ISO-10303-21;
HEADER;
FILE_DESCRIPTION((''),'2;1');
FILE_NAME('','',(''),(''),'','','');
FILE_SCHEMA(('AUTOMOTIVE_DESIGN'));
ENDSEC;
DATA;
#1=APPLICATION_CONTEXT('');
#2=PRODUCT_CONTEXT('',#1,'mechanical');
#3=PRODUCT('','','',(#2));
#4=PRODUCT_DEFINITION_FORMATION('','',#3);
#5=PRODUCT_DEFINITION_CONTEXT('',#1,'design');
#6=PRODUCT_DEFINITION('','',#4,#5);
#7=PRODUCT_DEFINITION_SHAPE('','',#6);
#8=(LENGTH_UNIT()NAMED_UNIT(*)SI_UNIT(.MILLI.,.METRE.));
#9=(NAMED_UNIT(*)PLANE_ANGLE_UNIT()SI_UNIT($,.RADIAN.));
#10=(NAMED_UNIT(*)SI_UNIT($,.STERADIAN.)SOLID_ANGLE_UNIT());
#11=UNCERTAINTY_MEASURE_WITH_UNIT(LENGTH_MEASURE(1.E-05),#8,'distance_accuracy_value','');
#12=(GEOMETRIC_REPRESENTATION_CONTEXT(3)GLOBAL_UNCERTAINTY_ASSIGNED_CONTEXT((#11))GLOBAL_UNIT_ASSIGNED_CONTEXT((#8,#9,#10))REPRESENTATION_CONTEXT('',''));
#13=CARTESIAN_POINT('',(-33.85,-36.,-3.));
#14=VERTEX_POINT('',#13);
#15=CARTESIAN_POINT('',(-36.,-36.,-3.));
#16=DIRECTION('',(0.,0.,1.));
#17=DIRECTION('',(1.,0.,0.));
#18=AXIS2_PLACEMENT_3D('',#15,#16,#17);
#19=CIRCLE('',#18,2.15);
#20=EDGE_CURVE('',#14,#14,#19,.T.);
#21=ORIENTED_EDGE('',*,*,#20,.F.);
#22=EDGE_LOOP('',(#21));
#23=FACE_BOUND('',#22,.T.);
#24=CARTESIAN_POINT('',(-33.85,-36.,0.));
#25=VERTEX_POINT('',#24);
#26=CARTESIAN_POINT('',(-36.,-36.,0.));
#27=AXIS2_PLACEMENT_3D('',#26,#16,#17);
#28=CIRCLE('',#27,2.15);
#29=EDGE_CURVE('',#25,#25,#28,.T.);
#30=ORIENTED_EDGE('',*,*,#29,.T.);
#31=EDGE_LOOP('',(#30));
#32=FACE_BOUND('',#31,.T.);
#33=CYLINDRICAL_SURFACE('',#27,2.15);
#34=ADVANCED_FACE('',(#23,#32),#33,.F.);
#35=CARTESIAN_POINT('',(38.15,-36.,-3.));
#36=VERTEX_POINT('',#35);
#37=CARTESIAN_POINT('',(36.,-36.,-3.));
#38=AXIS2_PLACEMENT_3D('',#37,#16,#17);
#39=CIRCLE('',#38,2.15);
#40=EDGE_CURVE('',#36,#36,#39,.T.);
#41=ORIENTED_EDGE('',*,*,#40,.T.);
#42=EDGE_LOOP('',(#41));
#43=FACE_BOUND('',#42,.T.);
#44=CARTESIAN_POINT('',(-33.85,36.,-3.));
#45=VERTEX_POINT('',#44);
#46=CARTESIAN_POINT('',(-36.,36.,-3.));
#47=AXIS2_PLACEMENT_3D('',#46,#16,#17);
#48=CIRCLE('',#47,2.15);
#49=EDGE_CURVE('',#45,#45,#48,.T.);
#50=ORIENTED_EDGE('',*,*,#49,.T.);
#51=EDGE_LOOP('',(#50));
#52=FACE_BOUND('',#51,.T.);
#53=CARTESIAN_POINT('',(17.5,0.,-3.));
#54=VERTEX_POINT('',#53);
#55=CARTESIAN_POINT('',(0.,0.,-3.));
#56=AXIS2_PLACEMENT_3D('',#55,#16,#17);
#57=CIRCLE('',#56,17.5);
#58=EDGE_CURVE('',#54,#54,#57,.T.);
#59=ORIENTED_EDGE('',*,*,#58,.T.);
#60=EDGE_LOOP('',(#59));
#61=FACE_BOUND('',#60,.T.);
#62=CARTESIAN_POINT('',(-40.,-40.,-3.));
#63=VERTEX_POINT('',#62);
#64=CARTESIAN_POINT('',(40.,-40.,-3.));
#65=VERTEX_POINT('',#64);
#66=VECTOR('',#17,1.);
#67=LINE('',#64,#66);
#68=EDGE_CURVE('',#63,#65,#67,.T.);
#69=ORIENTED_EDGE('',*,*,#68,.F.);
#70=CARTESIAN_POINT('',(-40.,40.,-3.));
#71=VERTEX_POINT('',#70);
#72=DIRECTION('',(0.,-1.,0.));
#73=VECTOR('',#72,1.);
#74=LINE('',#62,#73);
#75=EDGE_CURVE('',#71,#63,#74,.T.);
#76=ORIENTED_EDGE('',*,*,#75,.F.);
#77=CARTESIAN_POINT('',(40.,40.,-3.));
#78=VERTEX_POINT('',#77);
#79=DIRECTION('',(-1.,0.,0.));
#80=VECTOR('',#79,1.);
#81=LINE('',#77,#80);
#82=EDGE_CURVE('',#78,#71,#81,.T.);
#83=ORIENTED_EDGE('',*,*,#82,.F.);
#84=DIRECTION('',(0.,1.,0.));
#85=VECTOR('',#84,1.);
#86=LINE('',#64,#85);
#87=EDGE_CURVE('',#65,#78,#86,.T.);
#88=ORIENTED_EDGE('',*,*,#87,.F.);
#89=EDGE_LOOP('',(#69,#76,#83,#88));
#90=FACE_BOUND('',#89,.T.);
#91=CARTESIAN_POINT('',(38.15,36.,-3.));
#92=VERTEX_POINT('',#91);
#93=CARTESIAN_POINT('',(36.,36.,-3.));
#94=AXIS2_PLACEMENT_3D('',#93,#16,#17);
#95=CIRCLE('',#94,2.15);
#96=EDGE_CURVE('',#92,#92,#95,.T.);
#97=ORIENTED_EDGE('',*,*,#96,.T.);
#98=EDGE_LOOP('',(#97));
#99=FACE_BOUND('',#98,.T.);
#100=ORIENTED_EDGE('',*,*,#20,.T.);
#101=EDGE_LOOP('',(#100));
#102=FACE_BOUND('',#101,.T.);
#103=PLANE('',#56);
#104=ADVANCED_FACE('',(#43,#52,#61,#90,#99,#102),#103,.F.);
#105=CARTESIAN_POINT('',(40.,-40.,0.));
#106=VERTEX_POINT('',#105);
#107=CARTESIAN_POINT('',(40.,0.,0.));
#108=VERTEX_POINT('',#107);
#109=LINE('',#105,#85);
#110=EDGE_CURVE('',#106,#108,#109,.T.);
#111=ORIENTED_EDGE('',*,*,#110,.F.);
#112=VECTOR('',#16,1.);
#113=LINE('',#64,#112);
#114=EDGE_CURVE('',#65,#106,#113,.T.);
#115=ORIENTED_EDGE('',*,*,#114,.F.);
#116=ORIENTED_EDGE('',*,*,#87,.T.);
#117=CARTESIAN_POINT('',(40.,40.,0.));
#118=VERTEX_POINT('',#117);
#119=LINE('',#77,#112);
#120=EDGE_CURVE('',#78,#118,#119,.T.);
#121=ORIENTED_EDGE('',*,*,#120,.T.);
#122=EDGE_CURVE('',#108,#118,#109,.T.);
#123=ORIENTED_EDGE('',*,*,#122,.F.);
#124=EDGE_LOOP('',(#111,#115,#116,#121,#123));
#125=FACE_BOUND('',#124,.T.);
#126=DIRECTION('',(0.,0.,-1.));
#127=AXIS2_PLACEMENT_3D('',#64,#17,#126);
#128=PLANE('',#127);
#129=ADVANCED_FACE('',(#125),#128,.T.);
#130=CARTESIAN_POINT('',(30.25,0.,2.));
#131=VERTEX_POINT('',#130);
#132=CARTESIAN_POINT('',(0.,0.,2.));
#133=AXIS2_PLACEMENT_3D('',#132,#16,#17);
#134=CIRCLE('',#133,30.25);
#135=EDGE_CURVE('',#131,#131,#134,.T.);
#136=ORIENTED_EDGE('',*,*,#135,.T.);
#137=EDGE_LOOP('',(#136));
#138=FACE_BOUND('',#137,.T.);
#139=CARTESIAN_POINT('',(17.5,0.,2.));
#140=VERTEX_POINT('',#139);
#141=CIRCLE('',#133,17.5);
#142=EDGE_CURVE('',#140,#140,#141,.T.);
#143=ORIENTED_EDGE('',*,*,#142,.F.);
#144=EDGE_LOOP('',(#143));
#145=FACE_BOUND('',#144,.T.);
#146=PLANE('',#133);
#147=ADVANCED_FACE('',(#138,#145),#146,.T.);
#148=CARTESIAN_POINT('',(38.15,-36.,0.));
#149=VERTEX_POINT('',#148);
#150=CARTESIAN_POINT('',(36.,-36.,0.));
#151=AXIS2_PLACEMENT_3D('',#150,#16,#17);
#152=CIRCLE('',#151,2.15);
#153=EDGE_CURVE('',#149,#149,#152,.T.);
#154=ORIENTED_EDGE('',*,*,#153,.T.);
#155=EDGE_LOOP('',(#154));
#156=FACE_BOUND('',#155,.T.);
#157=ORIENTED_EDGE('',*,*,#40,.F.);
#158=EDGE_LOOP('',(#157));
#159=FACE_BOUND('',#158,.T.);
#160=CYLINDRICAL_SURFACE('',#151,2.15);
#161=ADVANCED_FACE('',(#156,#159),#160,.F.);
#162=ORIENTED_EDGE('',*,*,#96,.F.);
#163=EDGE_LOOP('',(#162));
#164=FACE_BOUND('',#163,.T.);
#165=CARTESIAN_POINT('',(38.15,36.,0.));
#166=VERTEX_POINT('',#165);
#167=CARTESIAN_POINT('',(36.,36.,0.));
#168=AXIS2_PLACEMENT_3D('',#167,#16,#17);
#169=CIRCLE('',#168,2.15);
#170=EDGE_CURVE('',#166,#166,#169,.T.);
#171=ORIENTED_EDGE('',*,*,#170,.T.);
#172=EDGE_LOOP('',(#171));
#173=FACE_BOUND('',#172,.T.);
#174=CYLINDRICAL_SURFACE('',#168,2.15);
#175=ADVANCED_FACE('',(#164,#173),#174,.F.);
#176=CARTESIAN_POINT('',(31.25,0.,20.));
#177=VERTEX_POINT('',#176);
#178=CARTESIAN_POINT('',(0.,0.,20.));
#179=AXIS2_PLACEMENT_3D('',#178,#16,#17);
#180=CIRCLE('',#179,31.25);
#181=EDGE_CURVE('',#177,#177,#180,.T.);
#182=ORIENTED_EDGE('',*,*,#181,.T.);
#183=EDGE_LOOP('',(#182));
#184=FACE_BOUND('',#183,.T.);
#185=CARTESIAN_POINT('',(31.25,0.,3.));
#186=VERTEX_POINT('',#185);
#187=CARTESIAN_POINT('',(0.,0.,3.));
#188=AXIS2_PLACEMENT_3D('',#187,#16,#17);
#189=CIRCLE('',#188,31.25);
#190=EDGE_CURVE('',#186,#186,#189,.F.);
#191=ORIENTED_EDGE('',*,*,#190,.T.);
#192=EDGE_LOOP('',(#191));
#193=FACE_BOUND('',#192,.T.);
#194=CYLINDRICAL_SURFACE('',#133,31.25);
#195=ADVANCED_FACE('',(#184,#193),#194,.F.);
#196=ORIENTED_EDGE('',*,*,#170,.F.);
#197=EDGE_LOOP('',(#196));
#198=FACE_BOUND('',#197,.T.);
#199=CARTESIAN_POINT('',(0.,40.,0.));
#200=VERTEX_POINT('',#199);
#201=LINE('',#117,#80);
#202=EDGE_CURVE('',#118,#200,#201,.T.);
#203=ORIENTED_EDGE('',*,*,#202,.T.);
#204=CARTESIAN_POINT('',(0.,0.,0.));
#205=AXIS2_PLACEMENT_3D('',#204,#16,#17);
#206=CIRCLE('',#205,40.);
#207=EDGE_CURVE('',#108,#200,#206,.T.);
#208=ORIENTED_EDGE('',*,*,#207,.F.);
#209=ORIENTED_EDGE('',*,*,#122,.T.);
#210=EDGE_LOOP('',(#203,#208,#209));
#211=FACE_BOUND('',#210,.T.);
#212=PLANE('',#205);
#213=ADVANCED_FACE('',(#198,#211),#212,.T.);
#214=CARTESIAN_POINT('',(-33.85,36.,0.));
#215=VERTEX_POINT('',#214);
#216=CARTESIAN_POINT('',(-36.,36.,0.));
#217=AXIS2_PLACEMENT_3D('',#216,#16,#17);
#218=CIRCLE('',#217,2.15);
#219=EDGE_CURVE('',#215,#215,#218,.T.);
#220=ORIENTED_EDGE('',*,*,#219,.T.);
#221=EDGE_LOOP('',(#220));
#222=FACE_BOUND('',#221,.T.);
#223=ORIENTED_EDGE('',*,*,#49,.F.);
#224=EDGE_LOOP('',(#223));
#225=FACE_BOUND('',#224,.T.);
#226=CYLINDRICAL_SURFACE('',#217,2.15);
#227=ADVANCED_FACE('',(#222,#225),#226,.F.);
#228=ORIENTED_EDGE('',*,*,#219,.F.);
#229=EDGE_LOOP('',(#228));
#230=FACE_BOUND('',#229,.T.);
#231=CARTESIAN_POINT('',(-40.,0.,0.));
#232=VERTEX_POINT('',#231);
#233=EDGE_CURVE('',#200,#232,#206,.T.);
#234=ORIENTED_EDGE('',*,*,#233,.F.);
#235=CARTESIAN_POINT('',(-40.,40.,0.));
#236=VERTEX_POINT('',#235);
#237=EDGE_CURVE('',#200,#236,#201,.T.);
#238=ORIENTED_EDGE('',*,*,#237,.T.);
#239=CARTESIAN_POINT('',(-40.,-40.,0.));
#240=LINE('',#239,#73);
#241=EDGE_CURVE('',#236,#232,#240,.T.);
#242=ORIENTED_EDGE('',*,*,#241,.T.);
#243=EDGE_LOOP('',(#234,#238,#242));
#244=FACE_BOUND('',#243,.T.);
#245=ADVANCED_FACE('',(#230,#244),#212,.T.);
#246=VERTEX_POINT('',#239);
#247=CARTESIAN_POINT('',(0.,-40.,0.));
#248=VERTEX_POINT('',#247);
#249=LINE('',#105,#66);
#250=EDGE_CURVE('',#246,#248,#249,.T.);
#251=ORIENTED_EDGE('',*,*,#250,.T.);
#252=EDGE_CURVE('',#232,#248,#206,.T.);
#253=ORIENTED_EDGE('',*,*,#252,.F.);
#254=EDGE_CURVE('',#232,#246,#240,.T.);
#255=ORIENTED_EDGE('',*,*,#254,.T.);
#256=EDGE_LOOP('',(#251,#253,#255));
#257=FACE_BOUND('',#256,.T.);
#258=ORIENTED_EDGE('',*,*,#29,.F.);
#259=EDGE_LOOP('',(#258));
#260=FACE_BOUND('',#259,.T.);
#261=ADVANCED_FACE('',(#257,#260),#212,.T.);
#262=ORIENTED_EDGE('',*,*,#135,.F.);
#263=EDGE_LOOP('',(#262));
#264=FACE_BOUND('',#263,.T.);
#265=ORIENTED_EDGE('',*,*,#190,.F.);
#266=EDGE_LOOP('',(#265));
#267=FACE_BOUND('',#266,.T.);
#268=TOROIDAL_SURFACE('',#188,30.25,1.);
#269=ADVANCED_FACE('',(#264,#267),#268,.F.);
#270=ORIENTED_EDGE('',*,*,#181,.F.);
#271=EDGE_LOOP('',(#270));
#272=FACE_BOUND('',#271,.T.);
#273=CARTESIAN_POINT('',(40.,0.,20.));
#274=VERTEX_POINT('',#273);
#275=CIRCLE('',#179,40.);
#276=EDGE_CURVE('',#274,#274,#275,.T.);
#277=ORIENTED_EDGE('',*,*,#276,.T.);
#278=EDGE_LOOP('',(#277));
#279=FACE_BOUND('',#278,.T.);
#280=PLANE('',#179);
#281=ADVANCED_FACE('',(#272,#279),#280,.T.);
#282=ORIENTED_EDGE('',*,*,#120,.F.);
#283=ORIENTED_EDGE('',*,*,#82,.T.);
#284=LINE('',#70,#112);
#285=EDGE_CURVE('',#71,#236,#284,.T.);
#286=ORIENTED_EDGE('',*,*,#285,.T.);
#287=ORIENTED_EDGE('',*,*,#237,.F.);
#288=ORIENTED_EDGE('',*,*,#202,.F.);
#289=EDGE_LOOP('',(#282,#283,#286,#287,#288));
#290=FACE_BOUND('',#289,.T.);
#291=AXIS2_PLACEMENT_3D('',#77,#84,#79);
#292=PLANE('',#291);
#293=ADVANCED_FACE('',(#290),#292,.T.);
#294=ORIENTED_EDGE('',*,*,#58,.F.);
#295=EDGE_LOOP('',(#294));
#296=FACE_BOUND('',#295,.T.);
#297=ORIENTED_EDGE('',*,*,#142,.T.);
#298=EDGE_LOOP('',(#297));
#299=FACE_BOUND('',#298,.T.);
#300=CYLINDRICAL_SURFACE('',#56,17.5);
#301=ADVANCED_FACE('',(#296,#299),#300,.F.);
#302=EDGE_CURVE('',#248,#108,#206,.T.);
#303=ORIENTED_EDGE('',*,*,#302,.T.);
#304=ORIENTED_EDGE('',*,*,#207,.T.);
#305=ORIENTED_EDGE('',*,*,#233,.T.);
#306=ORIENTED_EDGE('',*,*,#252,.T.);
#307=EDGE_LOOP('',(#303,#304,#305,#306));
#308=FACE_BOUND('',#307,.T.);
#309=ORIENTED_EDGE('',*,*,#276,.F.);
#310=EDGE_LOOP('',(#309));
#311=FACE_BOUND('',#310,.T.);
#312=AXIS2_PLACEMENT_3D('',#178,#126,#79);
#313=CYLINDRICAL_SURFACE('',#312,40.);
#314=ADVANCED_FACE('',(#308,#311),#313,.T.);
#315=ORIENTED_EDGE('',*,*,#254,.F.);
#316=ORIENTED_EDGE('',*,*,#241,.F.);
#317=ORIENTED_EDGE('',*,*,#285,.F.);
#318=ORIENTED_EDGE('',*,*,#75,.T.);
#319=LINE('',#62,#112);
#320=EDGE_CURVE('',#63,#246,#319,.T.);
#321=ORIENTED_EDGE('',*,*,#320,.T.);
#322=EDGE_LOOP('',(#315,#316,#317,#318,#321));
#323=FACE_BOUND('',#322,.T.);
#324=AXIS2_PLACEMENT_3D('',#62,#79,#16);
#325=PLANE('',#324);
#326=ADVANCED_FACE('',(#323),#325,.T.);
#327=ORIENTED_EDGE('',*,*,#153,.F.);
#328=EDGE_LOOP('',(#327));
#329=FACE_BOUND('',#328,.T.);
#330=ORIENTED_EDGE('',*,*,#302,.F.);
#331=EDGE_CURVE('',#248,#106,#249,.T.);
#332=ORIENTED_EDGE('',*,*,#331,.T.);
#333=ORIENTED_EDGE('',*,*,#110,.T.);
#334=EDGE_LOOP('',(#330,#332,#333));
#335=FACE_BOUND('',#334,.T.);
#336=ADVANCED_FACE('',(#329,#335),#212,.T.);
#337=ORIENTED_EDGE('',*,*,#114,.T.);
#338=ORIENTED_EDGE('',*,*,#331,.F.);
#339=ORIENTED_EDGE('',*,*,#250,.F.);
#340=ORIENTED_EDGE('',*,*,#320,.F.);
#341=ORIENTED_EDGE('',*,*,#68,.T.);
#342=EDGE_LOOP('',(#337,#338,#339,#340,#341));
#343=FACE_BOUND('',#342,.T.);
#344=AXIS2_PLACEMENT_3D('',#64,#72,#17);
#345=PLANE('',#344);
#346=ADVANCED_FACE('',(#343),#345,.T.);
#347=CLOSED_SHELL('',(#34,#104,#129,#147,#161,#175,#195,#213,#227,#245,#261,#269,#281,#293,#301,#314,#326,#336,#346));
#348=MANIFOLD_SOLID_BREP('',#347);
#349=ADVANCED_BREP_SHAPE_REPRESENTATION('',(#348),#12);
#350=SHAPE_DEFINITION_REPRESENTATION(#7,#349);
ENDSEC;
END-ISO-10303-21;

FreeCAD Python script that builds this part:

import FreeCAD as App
import Part
import Sketcher
from FreeCAD import Vector


def edges_at(feature, points):
    """Names of the edges that pass closest to the given points."""
    edges = feature.Shape.Edges
    near = lambda p: min(range(len(edges)), key=lambda i: edges[i].distToShape(Part.Vertex(*p))[0])
    return sorted({f"Edge{near(p) + 1}" for p in points})

doc = App.newDocument("Part")
body = doc.addObject("PartDesign::Body", "Body")

sketch1 = body.newObject("Sketcher::SketchObject", "Sketch")
sketch1.AttachmentSupport = (doc.getObject("XY_Plane"), [""])
sketch1.MapMode = "FlatFace"
sketch1.addGeometry(Part.Circle(Vector(0, 0, 0), Vector(0, 0, 1), 40), False)
sketch1.addConstraint(Sketcher.Constraint("Coincident", 0, 3, -1, 1))
sketch1.addConstraint(Sketcher.Constraint("Diameter", 0, 80.0))
pad1 = body.newObject("PartDesign::Pad", "Pad")
pad1.Profile = sketch1
pad1.Length = 20

sketch2 = body.newObject("Sketcher::SketchObject", "Sketch001")
sketch2.AttachmentSupport = (doc.getObject("XY_Plane"), [""])
sketch2.MapMode = "FlatFace"
sketch2.AttachmentOffset = App.Placement(Vector(0, 0, 20), App.Rotation())
sketch2.addGeometry(Part.Circle(Vector(0, 0, 0), Vector(0, 0, 1), 31), False)
sketch2.addConstraint(Sketcher.Constraint("Coincident", 0, 3, -1, 1))
sketch2.addConstraint(Sketcher.Constraint("Diameter", 0, 62.5))
pocket1 = body.newObject("PartDesign::Pocket", "Pocket")
pocket1.Profile = sketch2
pocket1.Length = 18
doc.recompute()

fillet = body.newObject("PartDesign::Fillet", "Fillet")
fillet.Base = (pocket1, edges_at(pocket1, [(-31.25, 0, 2)]))
fillet.Radius = 1

sketch3 = body.newObject("Sketcher::SketchObject", "Sketch002")
sketch3.AttachmentSupport = (doc.getObject("XY_Plane"), [""])
sketch3.MapMode = "FlatFace"
sketch3.addGeometry(Part.LineSegment(Vector(-40, 40, 0), Vector(-40, -40, 0)), False)
sketch3.addGeometry(Part.LineSegment(Vector(-40, -40, 0), Vector(40, -40, 0)), False)
sketch3.addGeometry(Part.LineSegment(Vector(40, -40, 0), Vector(40, 40, 0)), False)
sketch3.addGeometry(Part.LineSegment(Vector(40, 40, 0), Vector(-40, 40, 0)), False)
sketch3.addConstraint(Sketcher.Constraint("Coincident", 0, 2, 1, 1))
sketch3.addConstraint(Sketcher.Constraint("Coincident", 1, 2, 2, 1))
sketch3.addConstraint(Sketcher.Constraint("Coincident", 2, 2, 3, 1))
sketch3.addConstraint(Sketcher.Constraint("Coincident", 3, 2, 0, 1))
sketch3.addConstraint(Sketcher.Constraint("Vertical", 0))
sketch3.addConstraint(Sketcher.Constraint("Horizontal", 1))
sketch3.addConstraint(Sketcher.Constraint("Vertical", 2))
sketch3.addConstraint(Sketcher.Constraint("Horizontal", 3))
sketch3.addConstraint(Sketcher.Constraint("Symmetric", 0, 2, 2, 2, -1, 1))
sketch3.addConstraint(Sketcher.Constraint("Equal", 3, 0))
sketch3.addConstraint(Sketcher.Constraint("DistanceX", 1, 1, 1, 2, 80.0))
pad2 = body.newObject("PartDesign::Pad", "Pad001")
pad2.Profile = sketch3
pad2.Length = 3
pad2.Reversed = True

sketch4 = body.newObject("Sketcher::SketchObject", "Sketch003")
sketch4.AttachmentSupport = (doc.getObject("XY_Plane"), [""])
sketch4.MapMode = "FlatFace"
sketch4.addGeometry(Part.Circle(Vector(0, 0, 0), Vector(0, 0, 1), 18), False)
sketch4.addConstraint(Sketcher.Constraint("Coincident", 0, 3, -1, 1))
sketch4.addConstraint(Sketcher.Constraint("Diameter", 0, 35.0))
pocket2 = body.newObject("PartDesign::Pocket", "Pocket001")
pocket2.Profile = sketch4
pocket2.Type = "ThroughAll"
pocket2.Midplane = True

sketch5 = body.newObject("Sketcher::SketchObject", "Sketch004")
sketch5.AttachmentSupport = (doc.getObject("XY_Plane"), [""])
sketch5.MapMode = "FlatFace"
sketch5.addGeometry(Part.Circle(Vector(-36, 36, 0), Vector(0, 0, 1), 2.1), False)
sketch5.addConstraint(Sketcher.Constraint("Diameter", 0, 4.3))
sketch5.addConstraint(Sketcher.Constraint("DistanceX", 0, 3, -1, 1, 36.0))
sketch5.addConstraint(Sketcher.Constraint("DistanceY", -1, 1, 0, 3, 36.0))
doc.recompute()
hole = body.newObject("PartDesign::Hole", "Hole")
hole.Profile = sketch5
hole.ThreadType = "None"
hole.Diameter = 4.3
hole.DepthType = "ThroughAll"
doc.recompute()

mirrored = body.newObject("PartDesign::Mirrored", "Mirrored")
mirrored.Originals = [hole]
mirrored.MirrorPlane = (doc.getObject("YZ_Plane"), [""])
body.Tip = mirrored
doc.recompute()

mirrored2 = body.newObject("PartDesign::Mirrored", "Mirrored001")
mirrored2.Originals = [hole]
mirrored2.MirrorPlane = (doc.getObject("XZ_Plane"), [""])
body.Tip = mirrored2

sketch6 = body.newObject("Sketcher::SketchObject", "Sketch005")
sketch6.AttachmentSupport = (doc.getObject("XY_Plane"), [""])
sketch6.MapMode = "FlatFace"
sketch6.addGeometry(Part.Circle(Vector(36, -36, 0), Vector(0, 0, 1), 2.1), False)
sketch6.addConstraint(Sketcher.Constraint("Diameter", 0, 4.3))
sketch6.addConstraint(Sketcher.Constraint("DistanceX", -1, 1, 0, 3, 36.0))
sketch6.addConstraint(Sketcher.Constraint("DistanceY", 0, 3, -1, 1, 36.0))
doc.recompute()
hole2 = body.newObject("PartDesign::Hole", "Hole001")
hole2.Profile = sketch6
hole2.ThreadType = "None"
hole2.Diameter = 4.3
hole2.DepthType = "ThroughAll"

doc.recompute()
